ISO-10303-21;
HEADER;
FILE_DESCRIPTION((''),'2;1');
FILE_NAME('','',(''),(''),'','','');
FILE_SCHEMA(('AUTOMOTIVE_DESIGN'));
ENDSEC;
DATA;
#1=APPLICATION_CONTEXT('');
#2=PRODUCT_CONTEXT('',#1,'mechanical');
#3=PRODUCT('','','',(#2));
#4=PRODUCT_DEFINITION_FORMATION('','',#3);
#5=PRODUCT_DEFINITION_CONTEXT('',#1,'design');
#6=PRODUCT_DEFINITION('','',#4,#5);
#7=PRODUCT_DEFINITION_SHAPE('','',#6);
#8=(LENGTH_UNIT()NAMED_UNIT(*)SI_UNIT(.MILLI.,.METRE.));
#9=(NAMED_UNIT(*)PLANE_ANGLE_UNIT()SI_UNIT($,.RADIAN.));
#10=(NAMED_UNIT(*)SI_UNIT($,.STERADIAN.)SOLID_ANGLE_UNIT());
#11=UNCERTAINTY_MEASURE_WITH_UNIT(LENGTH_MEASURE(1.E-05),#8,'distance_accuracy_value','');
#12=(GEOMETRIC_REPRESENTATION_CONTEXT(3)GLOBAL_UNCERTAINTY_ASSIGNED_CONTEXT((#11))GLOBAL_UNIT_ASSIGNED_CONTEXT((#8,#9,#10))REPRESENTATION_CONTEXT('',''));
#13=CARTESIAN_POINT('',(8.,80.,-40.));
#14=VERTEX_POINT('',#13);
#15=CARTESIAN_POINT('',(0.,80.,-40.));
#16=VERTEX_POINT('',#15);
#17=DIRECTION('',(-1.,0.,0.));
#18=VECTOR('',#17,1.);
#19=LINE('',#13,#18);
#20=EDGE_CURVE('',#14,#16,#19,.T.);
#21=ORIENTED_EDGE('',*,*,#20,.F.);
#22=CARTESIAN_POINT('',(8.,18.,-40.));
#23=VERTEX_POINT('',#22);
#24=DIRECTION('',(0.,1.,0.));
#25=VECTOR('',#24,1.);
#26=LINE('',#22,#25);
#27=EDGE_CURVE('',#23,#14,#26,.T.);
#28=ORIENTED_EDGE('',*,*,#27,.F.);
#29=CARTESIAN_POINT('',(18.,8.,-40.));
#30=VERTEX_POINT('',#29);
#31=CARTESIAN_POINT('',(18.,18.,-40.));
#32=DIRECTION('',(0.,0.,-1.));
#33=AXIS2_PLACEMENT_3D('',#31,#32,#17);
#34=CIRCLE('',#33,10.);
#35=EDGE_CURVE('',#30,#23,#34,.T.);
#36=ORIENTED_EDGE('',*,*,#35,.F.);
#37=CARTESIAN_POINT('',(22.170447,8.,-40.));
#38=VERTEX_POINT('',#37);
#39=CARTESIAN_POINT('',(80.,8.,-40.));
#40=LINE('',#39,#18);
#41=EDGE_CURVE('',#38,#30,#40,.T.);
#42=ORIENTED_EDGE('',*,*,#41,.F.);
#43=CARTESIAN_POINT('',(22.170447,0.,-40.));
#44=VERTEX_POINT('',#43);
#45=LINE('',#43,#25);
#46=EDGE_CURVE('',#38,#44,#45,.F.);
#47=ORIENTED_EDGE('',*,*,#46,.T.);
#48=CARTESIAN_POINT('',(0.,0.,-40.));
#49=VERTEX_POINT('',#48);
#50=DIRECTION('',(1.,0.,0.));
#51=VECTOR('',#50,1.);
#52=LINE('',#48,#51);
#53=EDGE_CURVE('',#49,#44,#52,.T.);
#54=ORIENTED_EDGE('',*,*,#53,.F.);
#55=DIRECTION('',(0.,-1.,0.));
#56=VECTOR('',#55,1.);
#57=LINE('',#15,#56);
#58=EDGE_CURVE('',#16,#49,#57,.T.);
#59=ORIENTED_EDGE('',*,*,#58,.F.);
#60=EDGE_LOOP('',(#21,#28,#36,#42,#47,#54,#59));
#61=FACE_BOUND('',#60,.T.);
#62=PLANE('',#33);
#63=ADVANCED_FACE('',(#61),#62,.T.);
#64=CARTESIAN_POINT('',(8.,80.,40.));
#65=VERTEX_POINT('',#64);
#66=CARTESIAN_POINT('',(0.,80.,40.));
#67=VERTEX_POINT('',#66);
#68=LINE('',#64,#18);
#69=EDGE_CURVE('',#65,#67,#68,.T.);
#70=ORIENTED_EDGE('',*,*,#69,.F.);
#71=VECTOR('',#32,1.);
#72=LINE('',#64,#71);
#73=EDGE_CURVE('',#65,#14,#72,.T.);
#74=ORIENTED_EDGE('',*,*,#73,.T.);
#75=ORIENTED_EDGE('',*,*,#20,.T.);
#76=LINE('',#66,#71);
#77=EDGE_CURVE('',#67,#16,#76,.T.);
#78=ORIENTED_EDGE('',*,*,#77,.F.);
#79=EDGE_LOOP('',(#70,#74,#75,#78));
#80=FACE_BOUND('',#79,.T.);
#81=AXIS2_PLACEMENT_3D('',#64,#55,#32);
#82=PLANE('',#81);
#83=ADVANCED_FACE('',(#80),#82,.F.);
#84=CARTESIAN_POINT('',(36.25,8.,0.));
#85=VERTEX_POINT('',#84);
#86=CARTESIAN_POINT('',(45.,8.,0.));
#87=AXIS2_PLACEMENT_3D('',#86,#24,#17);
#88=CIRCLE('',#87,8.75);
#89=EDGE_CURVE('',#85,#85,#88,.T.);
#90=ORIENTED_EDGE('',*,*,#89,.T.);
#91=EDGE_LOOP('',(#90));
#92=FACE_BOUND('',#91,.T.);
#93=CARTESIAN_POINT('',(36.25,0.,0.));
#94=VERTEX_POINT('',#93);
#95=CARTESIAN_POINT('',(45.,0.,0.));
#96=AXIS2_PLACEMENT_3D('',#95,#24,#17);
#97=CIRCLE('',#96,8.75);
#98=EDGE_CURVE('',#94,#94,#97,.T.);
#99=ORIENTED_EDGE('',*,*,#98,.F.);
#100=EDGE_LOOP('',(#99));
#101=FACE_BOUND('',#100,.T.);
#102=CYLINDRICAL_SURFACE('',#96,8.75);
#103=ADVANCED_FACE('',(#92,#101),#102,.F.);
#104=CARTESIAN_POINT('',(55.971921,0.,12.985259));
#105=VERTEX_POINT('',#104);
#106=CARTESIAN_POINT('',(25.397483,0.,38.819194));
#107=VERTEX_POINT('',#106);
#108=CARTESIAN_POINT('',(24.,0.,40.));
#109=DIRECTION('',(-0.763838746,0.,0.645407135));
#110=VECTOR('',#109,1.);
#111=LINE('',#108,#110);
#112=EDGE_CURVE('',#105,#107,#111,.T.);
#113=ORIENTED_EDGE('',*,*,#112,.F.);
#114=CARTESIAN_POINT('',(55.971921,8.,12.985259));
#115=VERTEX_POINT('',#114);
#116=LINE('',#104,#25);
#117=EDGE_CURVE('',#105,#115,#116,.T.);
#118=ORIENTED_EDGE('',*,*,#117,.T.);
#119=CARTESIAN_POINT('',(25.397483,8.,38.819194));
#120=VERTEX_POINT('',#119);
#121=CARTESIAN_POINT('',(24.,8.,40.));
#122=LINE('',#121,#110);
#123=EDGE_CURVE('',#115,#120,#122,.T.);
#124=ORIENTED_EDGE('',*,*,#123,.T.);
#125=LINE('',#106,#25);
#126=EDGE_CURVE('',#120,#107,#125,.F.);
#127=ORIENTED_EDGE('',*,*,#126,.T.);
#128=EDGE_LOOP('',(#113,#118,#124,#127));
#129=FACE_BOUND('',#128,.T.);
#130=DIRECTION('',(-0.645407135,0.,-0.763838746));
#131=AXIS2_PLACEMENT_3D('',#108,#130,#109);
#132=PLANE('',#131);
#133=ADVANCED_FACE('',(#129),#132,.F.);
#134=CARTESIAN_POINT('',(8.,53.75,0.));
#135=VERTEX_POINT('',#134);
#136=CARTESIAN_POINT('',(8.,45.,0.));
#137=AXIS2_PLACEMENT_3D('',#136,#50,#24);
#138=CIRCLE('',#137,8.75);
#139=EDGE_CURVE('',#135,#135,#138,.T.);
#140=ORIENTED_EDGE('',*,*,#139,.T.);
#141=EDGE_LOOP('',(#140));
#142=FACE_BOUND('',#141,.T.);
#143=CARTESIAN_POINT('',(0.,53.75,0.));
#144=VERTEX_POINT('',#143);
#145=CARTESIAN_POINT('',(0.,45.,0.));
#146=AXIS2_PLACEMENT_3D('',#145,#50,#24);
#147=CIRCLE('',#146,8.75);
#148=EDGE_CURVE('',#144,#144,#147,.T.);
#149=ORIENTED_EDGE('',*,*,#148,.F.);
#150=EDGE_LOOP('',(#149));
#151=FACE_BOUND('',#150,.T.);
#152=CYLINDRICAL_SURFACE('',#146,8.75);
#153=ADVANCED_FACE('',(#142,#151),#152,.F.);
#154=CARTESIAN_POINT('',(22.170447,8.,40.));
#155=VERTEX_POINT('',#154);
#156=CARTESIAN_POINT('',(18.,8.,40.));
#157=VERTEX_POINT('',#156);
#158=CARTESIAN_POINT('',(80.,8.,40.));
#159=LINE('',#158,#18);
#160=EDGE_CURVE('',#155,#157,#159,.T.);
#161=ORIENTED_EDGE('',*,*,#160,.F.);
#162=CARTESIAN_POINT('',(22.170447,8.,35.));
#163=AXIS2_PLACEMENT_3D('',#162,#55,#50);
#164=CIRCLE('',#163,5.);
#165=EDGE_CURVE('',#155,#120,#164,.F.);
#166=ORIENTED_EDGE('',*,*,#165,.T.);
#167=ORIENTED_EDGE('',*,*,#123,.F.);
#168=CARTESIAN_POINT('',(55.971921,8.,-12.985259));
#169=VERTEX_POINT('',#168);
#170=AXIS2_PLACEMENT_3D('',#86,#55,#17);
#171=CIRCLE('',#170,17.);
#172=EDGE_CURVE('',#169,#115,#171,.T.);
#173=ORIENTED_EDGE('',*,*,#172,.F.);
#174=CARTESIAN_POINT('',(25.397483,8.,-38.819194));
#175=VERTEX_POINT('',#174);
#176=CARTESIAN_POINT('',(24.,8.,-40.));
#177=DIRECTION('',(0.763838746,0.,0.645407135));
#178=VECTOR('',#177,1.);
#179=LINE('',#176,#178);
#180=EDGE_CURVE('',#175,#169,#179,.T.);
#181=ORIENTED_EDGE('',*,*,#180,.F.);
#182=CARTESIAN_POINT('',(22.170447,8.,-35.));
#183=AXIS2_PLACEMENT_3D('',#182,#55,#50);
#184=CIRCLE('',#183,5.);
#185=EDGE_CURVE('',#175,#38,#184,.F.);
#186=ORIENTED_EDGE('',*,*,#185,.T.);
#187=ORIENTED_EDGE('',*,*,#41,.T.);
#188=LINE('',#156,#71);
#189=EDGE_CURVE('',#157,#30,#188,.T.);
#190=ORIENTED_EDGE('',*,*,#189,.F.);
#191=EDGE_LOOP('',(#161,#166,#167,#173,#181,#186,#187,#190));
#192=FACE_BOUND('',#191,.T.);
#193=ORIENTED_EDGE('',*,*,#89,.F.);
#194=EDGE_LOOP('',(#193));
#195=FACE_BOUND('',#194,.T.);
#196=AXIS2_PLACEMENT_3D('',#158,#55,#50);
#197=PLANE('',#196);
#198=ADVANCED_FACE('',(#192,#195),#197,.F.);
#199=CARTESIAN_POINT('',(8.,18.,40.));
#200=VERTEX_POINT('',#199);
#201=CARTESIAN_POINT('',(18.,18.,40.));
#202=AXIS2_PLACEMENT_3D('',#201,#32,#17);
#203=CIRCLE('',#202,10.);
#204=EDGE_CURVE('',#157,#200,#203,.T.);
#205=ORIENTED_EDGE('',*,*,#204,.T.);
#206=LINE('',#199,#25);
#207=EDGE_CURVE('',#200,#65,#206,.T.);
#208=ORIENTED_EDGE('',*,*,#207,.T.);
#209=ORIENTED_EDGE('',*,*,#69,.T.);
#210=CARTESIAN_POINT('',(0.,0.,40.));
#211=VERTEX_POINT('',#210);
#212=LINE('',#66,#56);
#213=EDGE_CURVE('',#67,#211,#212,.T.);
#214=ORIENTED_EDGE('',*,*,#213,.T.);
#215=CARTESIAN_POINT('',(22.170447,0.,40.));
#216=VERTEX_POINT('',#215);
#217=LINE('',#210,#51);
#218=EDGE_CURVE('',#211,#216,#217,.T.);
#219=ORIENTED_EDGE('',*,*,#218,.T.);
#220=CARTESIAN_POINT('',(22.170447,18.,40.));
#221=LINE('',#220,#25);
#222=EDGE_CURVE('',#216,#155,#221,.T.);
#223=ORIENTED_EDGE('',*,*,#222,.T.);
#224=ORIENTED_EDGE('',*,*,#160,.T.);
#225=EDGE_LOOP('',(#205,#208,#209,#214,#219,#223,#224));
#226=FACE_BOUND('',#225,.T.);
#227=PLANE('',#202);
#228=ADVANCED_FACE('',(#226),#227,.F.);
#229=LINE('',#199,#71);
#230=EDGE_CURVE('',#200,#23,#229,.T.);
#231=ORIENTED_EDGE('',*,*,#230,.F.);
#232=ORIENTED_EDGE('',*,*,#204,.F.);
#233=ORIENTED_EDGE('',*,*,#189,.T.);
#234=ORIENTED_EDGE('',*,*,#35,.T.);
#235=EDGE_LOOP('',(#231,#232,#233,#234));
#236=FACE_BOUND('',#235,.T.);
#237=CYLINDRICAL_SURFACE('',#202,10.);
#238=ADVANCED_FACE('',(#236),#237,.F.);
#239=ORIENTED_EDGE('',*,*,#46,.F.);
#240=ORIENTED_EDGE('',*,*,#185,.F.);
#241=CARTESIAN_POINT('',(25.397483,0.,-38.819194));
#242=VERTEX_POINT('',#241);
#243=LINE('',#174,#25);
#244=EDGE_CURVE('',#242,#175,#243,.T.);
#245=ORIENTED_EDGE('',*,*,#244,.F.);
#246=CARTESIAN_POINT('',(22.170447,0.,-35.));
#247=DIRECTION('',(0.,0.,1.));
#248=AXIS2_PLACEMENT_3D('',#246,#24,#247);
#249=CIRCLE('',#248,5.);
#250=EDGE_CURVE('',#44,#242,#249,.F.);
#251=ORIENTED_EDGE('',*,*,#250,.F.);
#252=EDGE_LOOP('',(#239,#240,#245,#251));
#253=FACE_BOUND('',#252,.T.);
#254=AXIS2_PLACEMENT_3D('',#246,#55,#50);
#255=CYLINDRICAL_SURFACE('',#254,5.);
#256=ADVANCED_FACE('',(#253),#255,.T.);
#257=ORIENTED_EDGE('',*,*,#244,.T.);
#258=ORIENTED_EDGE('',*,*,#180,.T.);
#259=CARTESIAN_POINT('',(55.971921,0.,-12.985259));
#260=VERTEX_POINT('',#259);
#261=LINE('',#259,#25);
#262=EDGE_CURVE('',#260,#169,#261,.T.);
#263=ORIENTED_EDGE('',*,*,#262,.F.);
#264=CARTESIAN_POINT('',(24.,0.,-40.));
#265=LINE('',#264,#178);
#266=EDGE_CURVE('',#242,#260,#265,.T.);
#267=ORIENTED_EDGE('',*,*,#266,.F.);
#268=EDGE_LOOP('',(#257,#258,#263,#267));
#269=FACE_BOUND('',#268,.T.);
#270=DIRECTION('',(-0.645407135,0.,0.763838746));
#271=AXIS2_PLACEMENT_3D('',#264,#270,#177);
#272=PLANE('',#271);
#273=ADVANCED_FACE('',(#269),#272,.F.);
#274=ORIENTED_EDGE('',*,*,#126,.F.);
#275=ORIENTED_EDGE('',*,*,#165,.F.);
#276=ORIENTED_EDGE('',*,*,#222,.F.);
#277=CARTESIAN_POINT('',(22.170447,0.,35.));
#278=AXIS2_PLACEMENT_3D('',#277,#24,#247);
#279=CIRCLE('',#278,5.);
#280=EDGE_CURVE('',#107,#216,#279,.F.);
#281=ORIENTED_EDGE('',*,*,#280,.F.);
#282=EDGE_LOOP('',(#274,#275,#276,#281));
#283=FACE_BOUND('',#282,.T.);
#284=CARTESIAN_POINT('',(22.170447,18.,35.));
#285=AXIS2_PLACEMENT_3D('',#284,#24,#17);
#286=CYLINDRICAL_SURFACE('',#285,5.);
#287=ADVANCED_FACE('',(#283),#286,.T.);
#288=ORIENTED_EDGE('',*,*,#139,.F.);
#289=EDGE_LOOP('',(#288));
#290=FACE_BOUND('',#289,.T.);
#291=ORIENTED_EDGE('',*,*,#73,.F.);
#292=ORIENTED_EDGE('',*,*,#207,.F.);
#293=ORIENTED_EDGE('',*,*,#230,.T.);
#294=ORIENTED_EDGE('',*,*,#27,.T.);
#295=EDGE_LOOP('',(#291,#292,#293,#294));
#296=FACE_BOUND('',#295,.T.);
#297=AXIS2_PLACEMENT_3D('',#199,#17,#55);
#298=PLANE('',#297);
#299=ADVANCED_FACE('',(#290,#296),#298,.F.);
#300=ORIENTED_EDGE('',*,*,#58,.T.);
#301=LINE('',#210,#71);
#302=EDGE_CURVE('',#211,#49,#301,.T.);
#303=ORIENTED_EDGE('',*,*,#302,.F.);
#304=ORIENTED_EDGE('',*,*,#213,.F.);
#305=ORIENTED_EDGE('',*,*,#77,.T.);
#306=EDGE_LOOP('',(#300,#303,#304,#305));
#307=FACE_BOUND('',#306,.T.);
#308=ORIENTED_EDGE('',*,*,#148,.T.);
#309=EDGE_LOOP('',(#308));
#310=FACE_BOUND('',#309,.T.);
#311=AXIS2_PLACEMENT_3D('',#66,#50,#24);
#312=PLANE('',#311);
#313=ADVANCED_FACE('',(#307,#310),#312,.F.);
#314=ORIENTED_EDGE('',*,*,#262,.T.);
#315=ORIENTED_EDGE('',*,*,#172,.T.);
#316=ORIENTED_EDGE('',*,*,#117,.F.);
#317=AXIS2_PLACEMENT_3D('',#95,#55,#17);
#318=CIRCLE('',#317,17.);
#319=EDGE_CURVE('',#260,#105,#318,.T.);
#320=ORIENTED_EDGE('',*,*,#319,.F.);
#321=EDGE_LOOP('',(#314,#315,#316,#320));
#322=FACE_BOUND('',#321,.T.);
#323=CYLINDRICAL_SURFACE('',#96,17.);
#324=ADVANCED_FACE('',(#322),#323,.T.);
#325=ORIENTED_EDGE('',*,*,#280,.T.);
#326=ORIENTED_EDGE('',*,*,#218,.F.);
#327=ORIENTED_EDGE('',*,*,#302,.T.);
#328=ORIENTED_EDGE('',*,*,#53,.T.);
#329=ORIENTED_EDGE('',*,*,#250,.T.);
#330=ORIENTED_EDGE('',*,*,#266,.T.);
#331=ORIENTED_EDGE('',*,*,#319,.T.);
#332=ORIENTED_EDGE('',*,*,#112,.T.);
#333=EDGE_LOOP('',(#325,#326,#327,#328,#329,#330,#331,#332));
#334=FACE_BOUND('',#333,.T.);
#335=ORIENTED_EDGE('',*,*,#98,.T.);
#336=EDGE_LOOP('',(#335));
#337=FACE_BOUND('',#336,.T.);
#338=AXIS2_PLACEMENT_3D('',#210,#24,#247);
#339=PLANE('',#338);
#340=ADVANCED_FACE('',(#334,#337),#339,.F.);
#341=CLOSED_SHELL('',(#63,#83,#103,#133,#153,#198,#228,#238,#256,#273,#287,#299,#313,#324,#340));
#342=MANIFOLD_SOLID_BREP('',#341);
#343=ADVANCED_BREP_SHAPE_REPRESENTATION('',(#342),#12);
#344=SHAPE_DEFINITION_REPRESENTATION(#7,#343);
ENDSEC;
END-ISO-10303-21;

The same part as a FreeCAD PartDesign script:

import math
import FreeCAD as App
import Part
import Sketcher


def edges_at(feature, points):
    """Names of the edges that pass closest to the given points."""
    edges = feature.Shape.Edges
    near = lambda p: min(range(len(edges)), key=lambda i: edges[i].distToShape(Part.Vertex(*p))[0])
    return sorted({f"Edge{near(p) + 1}" for p in points})

doc = App.newDocument("Part")
body = doc.addObject("PartDesign::Body", "Body")

sketch1 = body.newObject("Sketcher::SketchObject", "Sketch")
sketch1.AttachmentSupport = (doc.getObject("XY_Plane"), [""])
sketch1.MapMode = "FlatFace"
sketch1.addGeometry([
    Part.LineSegment(App.Vector(0, 0, 0), App.Vector(80, 0, 0)),
    Part.LineSegment(App.Vector(80, 0, 0), App.Vector(80, 8, 0)),
    Part.LineSegment(App.Vector(80, 8, 0), App.Vector(18, 8, 0)),
    Part.ArcOfCircle(Part.Circle(App.Vector(18, 18, 0), App.Vector(0, 0, 1), 10), math.radians(180), math.radians(270)),
    Part.LineSegment(App.Vector(8, 18, 0), App.Vector(8, 80, 0)),
    Part.LineSegment(App.Vector(8, 80, 0), App.Vector(0, 80, 0)),
    Part.LineSegment(App.Vector(0, 80, 0), App.Vector(0, 0, 0)),
], False)
sketch1.addConstraint([
    Sketcher.Constraint("Coincident", 0, 2, 1, 1),
    Sketcher.Constraint("Coincident", 1, 2, 2, 1),
    Sketcher.Constraint("Tangent", 2, 2, 3, 2),
    Sketcher.Constraint("Tangent", 3, 1, 4, 1),
    Sketcher.Constraint("Coincident", 4, 2, 5, 1),
    Sketcher.Constraint("Coincident", 5, 2, 6, 1),
    Sketcher.Constraint("Coincident", 6, 2, 0, 1),
    Sketcher.Constraint("Horizontal", 0),
    Sketcher.Constraint("Vertical", 1),
    Sketcher.Constraint("Horizontal", 2),
    Sketcher.Constraint("Vertical", 4),
    Sketcher.Constraint("Horizontal", 5),
    Sketcher.Constraint("Vertical", 6),
    Sketcher.Constraint("Coincident", 6, 2, -1, 1),
    Sketcher.Constraint("Equal", 5, 1),
    Sketcher.Constraint("Equal", 2, 4),
    Sketcher.Constraint("Radius", 3, 10.0),
    Sketcher.Constraint("DistanceX", 0, 1, 0, 2, 80.0),
    Sketcher.Constraint("DistanceX", 2, 2, 2, 1, 62.0),
])
pad1 = body.newObject("PartDesign::Pad", "Pad")
pad1.Profile = sketch1
pad1.Length = 80
pad1.Midplane = True

sketch2 = body.newObject("Sketcher::SketchObject", "Sketch001")
sketch2.AttachmentSupport = (doc.getObject("XZ_Plane"), [""])
sketch2.MapMode = "FlatFace"
sketch2.AttachmentOffset = App.Placement(App.Vector(0, 0, -8), App.Rotation())
sketch2.addGeometry(Part.Circle(App.Vector(45, 0, 0), App.Vector(0, 0, 1), 9), False)
sketch2.addConstraint([
    Sketcher.Constraint("PointOnObject", 0, 3, -1),
    Sketcher.Constraint("Diameter", 0, 17.5),
    Sketcher.Constraint("DistanceX", -1, 1, 0, 3, 45.0),
])
pocket1 = body.newObject("PartDesign::Pocket", "Pocket")
pocket1.Profile = sketch2
pocket1.Type = "ThroughAll"
pocket1.Reversed = True

sketch3 = body.newObject("Sketcher::SketchObject", "Sketch002")
sketch3.AttachmentSupport = (doc.getObject("YZ_Plane"), [""])
sketch3.MapMode = "FlatFace"
sketch3.AttachmentOffset = App.Placement(App.Vector(0, 0, 8), App.Rotation())
sketch3.addGeometry(Part.Circle(App.Vector(45, 0, 0), App.Vector(0, 0, 1), 9), False)
sketch3.addConstraint([
    Sketcher.Constraint("PointOnObject", 0, 3, -1),
    Sketcher.Constraint("Diameter", 0, 17.5),
    Sketcher.Constraint("DistanceX", -1, 1, 0, 3, 45.0),
])
pocket2 = body.newObject("PartDesign::Pocket", "Pocket001")
pocket2.Profile = sketch3
pocket2.Type = "ThroughAll"

sketch4 = body.newObject("Sketcher::SketchObject", "Sketch003")
sketch4.AttachmentSupport = (doc.getObject("XZ_Plane"), [""])
sketch4.MapMode = "FlatFace"
sketch4.AttachmentOffset = App.Placement(App.Vector(0, 0, -8), App.Rotation())
sketch4.addGeometry([
    Part.LineSegment(App.Vector(56, 13, 0), App.Vector(24, 40, 0)),
    Part.LineSegment(App.Vector(24, 40, 0), App.Vector(80, 40, 0)),
    Part.LineSegment(App.Vector(80, 40, 0), App.Vector(80, -40, 0)),
    Part.LineSegment(App.Vector(80, -40, 0), App.Vector(24, -40, 0)),
    Part.LineSegment(App.Vector(24, -40, 0), App.Vector(56, -13, 0)),
    Part.ArcOfCircle(Part.Circle(App.Vector(45, 0, 0), App.Vector(0, 0, 1), 17), math.radians(-50), math.radians(50)),
], False)
sketch4.addConstraint([
    Sketcher.Constraint("Coincident", 0, 2, 1, 1),
    Sketcher.Constraint("Coincident", 1, 2, 2, 1),
    Sketcher.Constraint("Coincident", 2, 2, 3, 1),
    Sketcher.Constraint("Coincident", 3, 2, 4, 1),
    Sketcher.Constraint("Tangent", 4, 2, 5, 1),
    Sketcher.Constraint("Tangent", 5, 2, 0, 1),
    Sketcher.Constraint("Horizontal", 1),
    Sketcher.Constraint("Vertical", 2),
    Sketcher.Constraint("Horizontal", 3),
    Sketcher.Constraint("Symmetric", 0, 2, 3, 2, -1),
    Sketcher.Constraint("PointOnObject", 5, 3, -1),
    Sketcher.Constraint("Radius", 5, 17.0),
    Sketcher.Constraint("DistanceX", 1, 1, 1, 2, 56.0),
    Sketcher.Constraint("DistanceY", 2, 2, 2, 1, 80.0),
    Sketcher.Constraint("DistanceX", -1, 1, 5, 3, 45.0),
    Sketcher.Constraint("DistanceX", -1, 1, 0, 2, 24.0),
])
pocket3 = body.newObject("PartDesign::Pocket", "Pocket002")
pocket3.Profile = sketch4
pocket3.Type = "ThroughAll"
pocket3.Reversed = True
doc.recompute()

fillet = body.newObject("PartDesign::Fillet", "Fillet")
fillet.Base = (pocket3, edges_at(pocket3, [(24, 4, 40), (24, 4, -40)]))
fillet.Radius = 5

doc.recompute()
